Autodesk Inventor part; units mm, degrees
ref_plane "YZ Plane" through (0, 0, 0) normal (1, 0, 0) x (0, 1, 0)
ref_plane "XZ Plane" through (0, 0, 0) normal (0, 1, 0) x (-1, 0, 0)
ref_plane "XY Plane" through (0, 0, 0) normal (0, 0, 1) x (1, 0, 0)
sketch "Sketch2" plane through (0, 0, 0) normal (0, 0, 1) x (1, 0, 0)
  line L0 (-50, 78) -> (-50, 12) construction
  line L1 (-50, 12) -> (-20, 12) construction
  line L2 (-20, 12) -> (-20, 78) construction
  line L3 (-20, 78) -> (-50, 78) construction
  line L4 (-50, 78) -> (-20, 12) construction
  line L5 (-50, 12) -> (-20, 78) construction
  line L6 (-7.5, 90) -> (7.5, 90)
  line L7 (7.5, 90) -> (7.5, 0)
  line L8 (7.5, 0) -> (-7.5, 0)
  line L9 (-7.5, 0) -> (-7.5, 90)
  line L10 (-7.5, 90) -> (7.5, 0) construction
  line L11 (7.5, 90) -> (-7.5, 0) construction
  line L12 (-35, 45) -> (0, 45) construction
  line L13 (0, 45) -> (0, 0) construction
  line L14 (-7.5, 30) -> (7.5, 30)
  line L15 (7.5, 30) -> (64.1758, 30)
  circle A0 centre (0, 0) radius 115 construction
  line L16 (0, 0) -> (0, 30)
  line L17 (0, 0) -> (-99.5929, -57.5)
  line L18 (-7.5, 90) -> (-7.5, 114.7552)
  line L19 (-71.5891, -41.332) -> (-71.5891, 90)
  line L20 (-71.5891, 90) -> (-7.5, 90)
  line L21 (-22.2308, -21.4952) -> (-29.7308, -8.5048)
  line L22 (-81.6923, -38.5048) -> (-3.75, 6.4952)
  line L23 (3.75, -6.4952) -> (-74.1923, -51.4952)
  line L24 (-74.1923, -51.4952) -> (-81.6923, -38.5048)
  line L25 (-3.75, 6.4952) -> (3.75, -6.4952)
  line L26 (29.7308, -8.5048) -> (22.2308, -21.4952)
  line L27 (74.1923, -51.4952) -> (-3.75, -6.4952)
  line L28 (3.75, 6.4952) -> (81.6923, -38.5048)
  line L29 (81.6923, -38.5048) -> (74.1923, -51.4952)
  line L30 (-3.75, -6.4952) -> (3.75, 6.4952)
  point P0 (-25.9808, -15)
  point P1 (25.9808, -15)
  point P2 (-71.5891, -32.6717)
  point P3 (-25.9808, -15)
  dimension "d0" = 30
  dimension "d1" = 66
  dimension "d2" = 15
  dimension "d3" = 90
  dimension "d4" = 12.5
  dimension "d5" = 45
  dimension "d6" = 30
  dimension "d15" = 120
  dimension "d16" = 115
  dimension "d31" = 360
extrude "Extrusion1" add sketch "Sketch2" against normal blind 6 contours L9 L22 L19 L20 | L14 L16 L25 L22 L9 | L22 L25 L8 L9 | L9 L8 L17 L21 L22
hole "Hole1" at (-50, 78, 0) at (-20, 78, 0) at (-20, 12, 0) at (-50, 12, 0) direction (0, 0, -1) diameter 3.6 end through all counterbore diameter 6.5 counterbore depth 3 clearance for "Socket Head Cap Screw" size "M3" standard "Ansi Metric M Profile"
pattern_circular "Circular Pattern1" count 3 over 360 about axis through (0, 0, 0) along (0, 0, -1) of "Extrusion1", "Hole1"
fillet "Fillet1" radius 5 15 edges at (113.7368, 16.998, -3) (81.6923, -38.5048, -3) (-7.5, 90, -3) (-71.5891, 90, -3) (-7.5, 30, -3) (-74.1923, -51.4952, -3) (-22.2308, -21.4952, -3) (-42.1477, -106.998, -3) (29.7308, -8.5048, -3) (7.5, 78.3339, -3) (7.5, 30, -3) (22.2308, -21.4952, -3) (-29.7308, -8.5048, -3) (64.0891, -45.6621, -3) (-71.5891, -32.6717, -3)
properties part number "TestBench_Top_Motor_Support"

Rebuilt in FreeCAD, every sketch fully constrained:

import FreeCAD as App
import Part
import Sketcher
from FreeCAD import Vector
Q = App.Units.Quantity


def edges_at(feature, points):
    """Names of the edges that pass closest to the given points."""
    edges = feature.Shape.Edges
    near = lambda p: min(range(len(edges)), key=lambda i: edges[i].distToShape(Part.Vertex(*p))[0])
    return sorted({f"Edge{near(p) + 1}" for p in points})


def add_polygon(sketch, points):
    """Adds a closed chain of lines whose ends are joined by coincident constraints."""
    first, n = sketch.GeometryCount, len(points)
    for a, b in zip(points, points[1:] + points[:1]):
        sketch.addGeometry(Part.LineSegment(App.Vector(*a, 0), App.Vector(*b, 0)), False)
    for i in range(n):
        sketch.addConstraint(Sketcher.Constraint("Coincident", first + i, 2, first + (i + 1) % n, 1))

doc = App.newDocument("Part")
body = doc.addObject("PartDesign::Body", "Body")

sketch1 = body.newObject("Sketcher::SketchObject", "Sketch")
sketch1.AttachmentSupport = (doc.getObject("XY_Plane"), [""])
sketch1.MapMode = "FlatFace"
add_polygon(sketch1, [(-8, 30), (-8, 90), (-72, 90), (-72, -33), (-30, -9), (-26, -15), (0, 0), (0, 30)])
sketch1.addConstraint(Sketcher.Constraint("Vertical", 0))
sketch1.addConstraint(Sketcher.Constraint("Horizontal", 1))
sketch1.addConstraint(Sketcher.Constraint("Vertical", 2))
sketch1.addConstraint(Sketcher.Constraint("Vertical", 6))
sketch1.addConstraint(Sketcher.Constraint("Horizontal", 7))
sketch1.addConstraint(Sketcher.Constraint("Coincident", 5, 2, -1, 1))
sketch1.addConstraint(Sketcher.Constraint("Perpendicular", 3, 4))
sketch1.addConstraint(Sketcher.Constraint("Perpendicular", 4, 5))
sketch1.addConstraint(Sketcher.Constraint("DistanceY", 6, 1, 6, 2, 30.0))
sketch1.addConstraint(Sketcher.Constraint("Angle", 3, Q("30 deg")))
sketch1.addConstraint(Sketcher.Constraint("Distance", 5, 30.0))
sketch1.addConstraint(Sketcher.Constraint("DistanceY", -1, 1, 0, 2, 90.0))
sketch1.addConstraint(Sketcher.Constraint("DistanceX", 7, 2, 7, 1, 7.5))
sketch1.addConstraint(Sketcher.Constraint("Distance", 4, 7.5))
sketch1.addConstraint(Sketcher.Constraint("DistanceX", 1, 2, 1, 1, 64.089))
pad1 = body.newObject("PartDesign::Pad", "Pad")
pad1.Profile = sketch1
pad1.Length = 6
pad1.Reversed = True

sketch2 = body.newObject("Sketcher::SketchObject", "Sketch001")
sketch2.AttachmentSupport = (doc.getObject("XY_Plane"), [""])
sketch2.MapMode = "FlatFace"
sketch2.addGeometry(Part.Circle(Vector(-50, 78, 0), Vector(0, 0, 1), 1.8), False)
sketch2.addGeometry(Part.Circle(Vector(-20, 78, 0), Vector(0, 0, 1), 1.8), False)
sketch2.addGeometry(Part.Circle(Vector(-20, 12, 0), Vector(0, 0, 1), 1.8), False)
sketch2.addGeometry(Part.Circle(Vector(-50, 12, 0), Vector(0, 0, 1), 1.8), False)
sketch2.addConstraint(Sketcher.Constraint("Equal", 0, 1))
sketch2.addConstraint(Sketcher.Constraint("Equal", 1, 2))
sketch2.addConstraint(Sketcher.Constraint("Equal", 2, 3))
sketch2.addConstraint(Sketcher.Constraint("Horizontal", 0, 3, 1, 3))
sketch2.addConstraint(Sketcher.Constraint("Horizontal", 2, 3, 3, 3))
sketch2.addConstraint(Sketcher.Constraint("Vertical", 1, 3, 2, 3))
sketch2.addConstraint(Sketcher.Constraint("Vertical", 0, 3, 3, 3))
sketch2.addConstraint(Sketcher.Constraint("Diameter", 0, 3.6))
sketch2.addConstraint(Sketcher.Constraint("DistanceX", 0, 3, -1, 1, 50.0))
sketch2.addConstraint(Sketcher.Constraint("DistanceY", -1, 1, 0, 3, 78.0))
sketch2.addConstraint(Sketcher.Constraint("DistanceX", 1, 3, -1, 1, 20.0))
sketch2.addConstraint(Sketcher.Constraint("DistanceY", -1, 1, 2, 3, 12.0))
doc.recompute()
hole = body.newObject("PartDesign::Hole", "Hole")
hole.Profile = sketch2
hole.ThreadType = "None"
hole.Diameter = 3.6
hole.DepthType = "ThroughAll"
hole.HoleCutType = "Counterbore"
hole.HoleCutDiameter = 6.5
hole.HoleCutDepth = 3
doc.recompute()

polarpattern = body.newObject("PartDesign::PolarPattern", "PolarPattern")
polarpattern.Originals = [pad1, hole]
polarpattern.Axis = (doc.getObject("Z_Axis"), [""])
polarpattern.Angle = 360
polarpattern.Occurrences = 3
body.Tip = polarpattern
doc.recompute()

fillet = body.newObject("PartDesign::Fillet", "Fillet")
fillet.Base = (polarpattern, edges_at(polarpattern, [
    (113.737, 16.998, -3),
    (81.692, -38.505, -3),
    (-7.5, 90, -3),
    (-71.589, 90, -3),
    (-7.5, 30, -3),
    (-74.192, -51.495, -3),
    (-22.231, -21.495, -3),
    (-42.148, -106.998, -3),
    (29.731, -8.505, -3),
    (7.5, 78.334, -3),
    (7.5, 30, -3),
    (22.231, -21.495, -3),
    (-29.731, -8.505, -3),
    (64.089, -45.662, -3),
    (-71.589, -32.672, -3),
]))
fillet.Radius = 5

doc.recompute()
